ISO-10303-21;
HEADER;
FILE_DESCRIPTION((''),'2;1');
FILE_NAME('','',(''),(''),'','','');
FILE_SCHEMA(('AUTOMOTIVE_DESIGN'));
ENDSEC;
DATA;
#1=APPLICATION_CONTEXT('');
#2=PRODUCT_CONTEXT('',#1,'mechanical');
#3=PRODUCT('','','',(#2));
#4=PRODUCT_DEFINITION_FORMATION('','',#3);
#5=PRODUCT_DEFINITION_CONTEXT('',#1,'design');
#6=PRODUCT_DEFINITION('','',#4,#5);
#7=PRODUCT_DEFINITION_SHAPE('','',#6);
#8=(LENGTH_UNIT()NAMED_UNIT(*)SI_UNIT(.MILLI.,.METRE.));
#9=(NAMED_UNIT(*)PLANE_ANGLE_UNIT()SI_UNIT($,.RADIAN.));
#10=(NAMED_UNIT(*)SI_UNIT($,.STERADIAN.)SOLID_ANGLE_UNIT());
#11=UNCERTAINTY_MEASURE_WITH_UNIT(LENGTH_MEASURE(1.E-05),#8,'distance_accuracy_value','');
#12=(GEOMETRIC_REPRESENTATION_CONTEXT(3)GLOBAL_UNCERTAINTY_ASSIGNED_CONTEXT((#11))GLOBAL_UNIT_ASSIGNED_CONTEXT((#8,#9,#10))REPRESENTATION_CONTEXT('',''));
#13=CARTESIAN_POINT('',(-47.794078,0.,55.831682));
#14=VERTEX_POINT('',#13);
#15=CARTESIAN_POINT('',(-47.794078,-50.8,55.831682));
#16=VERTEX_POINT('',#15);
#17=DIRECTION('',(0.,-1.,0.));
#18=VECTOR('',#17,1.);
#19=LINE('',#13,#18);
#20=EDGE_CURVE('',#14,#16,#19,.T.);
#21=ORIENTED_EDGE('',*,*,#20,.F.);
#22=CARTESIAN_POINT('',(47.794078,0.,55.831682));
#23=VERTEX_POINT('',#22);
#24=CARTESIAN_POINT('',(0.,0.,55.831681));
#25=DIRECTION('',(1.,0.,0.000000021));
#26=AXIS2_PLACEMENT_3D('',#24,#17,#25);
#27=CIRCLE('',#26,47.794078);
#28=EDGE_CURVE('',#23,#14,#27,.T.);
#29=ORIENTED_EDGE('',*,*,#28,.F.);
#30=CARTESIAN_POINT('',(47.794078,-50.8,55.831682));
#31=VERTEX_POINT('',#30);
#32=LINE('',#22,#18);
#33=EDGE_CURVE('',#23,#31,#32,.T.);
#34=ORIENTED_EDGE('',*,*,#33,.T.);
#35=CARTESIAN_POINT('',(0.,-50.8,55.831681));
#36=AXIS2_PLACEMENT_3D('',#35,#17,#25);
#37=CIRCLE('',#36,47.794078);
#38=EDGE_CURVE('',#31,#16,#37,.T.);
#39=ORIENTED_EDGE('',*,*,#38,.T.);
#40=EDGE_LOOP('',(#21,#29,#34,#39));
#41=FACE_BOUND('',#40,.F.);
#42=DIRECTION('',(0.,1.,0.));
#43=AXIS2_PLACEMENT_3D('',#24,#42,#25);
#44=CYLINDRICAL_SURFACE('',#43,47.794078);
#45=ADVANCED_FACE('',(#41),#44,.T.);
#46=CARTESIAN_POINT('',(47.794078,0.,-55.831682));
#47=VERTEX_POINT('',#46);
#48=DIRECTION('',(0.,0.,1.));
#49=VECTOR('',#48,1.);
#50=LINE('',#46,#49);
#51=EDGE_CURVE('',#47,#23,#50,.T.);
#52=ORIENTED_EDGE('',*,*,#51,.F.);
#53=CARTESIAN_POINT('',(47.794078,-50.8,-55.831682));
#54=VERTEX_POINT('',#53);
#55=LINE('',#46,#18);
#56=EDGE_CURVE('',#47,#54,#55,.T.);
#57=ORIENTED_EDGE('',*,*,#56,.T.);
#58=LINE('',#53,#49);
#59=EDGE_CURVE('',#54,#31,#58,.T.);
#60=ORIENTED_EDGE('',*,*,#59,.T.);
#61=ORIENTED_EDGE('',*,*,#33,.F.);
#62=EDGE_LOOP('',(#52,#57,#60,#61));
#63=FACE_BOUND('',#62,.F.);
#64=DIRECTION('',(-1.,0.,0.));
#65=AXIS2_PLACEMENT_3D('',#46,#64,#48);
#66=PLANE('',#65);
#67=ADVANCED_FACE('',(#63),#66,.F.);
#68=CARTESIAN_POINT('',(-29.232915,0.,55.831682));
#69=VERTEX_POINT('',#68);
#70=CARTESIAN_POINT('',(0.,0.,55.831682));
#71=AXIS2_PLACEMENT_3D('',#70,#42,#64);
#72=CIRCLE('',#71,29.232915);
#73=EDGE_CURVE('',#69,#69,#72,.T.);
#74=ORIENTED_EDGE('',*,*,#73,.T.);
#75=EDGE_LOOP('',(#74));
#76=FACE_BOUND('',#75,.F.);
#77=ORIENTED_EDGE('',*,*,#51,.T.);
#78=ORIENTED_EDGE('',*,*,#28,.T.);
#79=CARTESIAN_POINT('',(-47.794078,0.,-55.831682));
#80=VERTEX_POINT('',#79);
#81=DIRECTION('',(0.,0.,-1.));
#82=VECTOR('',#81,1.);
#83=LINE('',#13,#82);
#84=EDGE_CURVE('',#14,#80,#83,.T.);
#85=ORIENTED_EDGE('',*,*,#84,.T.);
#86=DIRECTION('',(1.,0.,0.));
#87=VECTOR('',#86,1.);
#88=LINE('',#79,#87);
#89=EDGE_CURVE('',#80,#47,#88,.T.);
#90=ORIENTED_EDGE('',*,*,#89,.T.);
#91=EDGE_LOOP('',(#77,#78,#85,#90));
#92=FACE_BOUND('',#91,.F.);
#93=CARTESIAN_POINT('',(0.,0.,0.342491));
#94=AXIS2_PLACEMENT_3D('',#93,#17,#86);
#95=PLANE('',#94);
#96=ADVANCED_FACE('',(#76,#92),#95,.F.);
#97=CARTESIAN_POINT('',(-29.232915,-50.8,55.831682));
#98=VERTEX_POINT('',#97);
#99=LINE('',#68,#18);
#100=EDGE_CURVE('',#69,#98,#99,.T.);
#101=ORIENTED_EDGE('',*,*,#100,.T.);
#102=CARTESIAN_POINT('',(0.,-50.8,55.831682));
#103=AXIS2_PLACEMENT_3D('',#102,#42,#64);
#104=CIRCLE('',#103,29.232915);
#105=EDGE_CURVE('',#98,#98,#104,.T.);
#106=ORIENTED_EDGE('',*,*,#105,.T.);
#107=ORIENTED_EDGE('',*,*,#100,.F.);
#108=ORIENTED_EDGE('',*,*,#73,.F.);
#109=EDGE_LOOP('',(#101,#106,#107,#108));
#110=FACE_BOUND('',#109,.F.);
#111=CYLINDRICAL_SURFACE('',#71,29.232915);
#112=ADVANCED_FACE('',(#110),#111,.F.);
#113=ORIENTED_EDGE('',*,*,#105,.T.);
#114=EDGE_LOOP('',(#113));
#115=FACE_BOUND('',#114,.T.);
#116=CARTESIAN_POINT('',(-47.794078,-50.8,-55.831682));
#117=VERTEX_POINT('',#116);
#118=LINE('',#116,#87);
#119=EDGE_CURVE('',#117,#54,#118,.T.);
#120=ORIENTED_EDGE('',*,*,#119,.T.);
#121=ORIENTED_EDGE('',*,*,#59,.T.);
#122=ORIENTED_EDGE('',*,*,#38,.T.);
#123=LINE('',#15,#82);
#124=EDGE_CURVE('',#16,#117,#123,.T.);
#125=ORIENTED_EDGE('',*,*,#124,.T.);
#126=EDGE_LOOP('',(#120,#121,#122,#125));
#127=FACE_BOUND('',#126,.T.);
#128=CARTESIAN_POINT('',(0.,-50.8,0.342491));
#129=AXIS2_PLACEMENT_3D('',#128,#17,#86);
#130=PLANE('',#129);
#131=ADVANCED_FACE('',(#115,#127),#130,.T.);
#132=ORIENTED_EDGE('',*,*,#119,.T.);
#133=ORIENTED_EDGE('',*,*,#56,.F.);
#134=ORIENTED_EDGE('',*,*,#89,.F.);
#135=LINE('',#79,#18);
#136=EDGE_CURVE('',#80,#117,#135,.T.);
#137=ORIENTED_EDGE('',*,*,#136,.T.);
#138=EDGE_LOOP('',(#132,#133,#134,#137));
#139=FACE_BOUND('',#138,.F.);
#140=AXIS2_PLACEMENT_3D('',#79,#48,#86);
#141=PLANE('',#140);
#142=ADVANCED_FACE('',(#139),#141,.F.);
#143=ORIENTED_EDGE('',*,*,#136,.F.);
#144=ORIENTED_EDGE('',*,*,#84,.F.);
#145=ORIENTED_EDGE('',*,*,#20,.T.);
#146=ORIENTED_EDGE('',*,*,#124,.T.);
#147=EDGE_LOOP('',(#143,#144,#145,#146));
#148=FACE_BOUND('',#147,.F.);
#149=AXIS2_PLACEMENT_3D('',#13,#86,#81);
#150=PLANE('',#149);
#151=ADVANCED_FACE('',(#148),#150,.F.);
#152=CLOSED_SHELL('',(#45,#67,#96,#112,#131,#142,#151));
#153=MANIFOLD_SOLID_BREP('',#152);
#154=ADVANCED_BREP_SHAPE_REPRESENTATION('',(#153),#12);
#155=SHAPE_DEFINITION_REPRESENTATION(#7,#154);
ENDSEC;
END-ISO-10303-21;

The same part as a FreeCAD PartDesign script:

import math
import FreeCAD as App
import Part
import Sketcher
Q = App.Units.Quantity

doc = App.newDocument("Part")
body = doc.addObject("PartDesign::Body", "Body")

# Sketch on XZ plane
sketch1 = doc.addObject("Sketcher::SketchObject", "Sketch")
body.addObject(sketch1)
sketch1.AttachmentSupport = (doc.XZ_Plane, [""])
sketch1.MapMode = "FlatFace"
sketch1.addGeometry(Part.LineSegment(App.Vector(47.794078, -55.831682, 0), App.Vector(47.794078, 55.831682, 0)), False)
sketch1.addGeometry(Part.ArcOfCircle(Part.Circle(App.Vector(0, 55.831681, 0), App.Vector(0, 0, 1), 47.794078), math.radians(0.000001), math.radians(179.999999)), False)
sketch1.addGeometry(Part.LineSegment(App.Vector(-47.794078, 55.831682, 0), App.Vector(-47.794078, -55.831682, 0)), False)
sketch1.addGeometry(Part.LineSegment(App.Vector(-47.794078, -55.831682, 0), App.Vector(47.794078, -55.831682, 0)), False)
sketch1.addGeometry(Part.Circle(App.Vector(0, 55.831682, 0), App.Vector(0, 0, 1), 29.232915), False)
sketch1.addConstraint(Sketcher.Constraint("Tangent", 0, 2, 1, 1))
sketch1.addConstraint(Sketcher.Constraint("Tangent", 1, 2, 2, 1))
sketch1.addConstraint(Sketcher.Constraint("Coincident", 2, 2, 3, 1))
sketch1.addConstraint(Sketcher.Constraint("Coincident", 3, 2, 0, 1))
sketch1.addConstraint(Sketcher.Constraint("Vertical", 0))
sketch1.addConstraint(Sketcher.Constraint("Vertical", 2))
sketch1.addConstraint(Sketcher.Constraint("Horizontal", 3))
sketch1.addConstraint(Sketcher.Constraint("Coincident", 4, 3, 1, 3))
sketch1.addConstraint(Sketcher.Constraint("Symmetric", 0, 2, 2, 2, -1, 1))
sketch1.addConstraint(Sketcher.Constraint("Diameter", 4, 58.46583))
sketch1.addConstraint(Sketcher.Constraint("Radius", 1, 47.794078))
sketch1.addConstraint(Sketcher.Constraint("DistanceY", 0, 1, 0, 2, 111.663364))
pad1 = doc.addObject("PartDesign::Pad", "Pad")
body.addObject(pad1)
pad1.Profile = sketch1
pad1.Length = Q("2 in")

doc.recompute()
